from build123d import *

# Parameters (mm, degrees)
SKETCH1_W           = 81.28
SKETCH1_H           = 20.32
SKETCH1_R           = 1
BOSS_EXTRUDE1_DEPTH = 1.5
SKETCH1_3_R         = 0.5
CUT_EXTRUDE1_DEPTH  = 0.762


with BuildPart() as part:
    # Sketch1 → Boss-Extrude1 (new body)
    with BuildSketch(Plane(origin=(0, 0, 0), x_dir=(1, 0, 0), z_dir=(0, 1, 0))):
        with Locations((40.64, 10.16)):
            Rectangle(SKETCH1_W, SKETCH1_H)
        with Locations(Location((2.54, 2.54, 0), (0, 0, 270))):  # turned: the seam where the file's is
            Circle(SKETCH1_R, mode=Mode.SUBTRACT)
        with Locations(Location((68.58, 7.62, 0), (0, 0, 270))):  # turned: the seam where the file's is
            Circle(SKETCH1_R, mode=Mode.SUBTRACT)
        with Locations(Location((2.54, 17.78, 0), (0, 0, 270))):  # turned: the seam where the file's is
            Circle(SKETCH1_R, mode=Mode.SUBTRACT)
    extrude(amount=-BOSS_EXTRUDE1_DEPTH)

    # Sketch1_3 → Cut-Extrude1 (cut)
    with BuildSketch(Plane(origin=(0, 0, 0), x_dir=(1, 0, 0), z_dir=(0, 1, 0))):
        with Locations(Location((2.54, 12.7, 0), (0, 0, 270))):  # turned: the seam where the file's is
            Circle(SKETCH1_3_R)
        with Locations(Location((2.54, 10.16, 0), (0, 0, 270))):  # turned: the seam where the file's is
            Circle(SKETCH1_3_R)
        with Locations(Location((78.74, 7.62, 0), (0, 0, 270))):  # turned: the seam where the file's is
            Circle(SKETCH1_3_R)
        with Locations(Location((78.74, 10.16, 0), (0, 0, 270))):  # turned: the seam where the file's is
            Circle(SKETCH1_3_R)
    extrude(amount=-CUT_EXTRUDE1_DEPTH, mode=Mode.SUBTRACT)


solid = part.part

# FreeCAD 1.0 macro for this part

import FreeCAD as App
import Part
import Sketcher
Q = App.Units.Quantity

doc = App.newDocument("Part")
body = doc.addObject("PartDesign::Body", "Body")

# Sketch on XZ plane
sketch1 = body.newObject("Sketcher::SketchObject", "Sketch")
sketch1.AttachmentSupport = (doc.getObject("XZ_Plane"), [""])
sketch1.MapMode = "FlatFace"
sketch1.addGeometry([
    Part.LineSegment(App.Vector(0, -20.32, 0), App.Vector(0, 0, 0)),  # 0
    Part.LineSegment(App.Vector(0, 0, 0), App.Vector(81.28, 0, 0)),  # 1
    Part.LineSegment(App.Vector(81.28, 0, 0), App.Vector(81.28, -20.32, 0)),  # 2
    Part.LineSegment(App.Vector(81.28, -20.32, 0), App.Vector(0, -20.32, 0)),  # 3
    Part.Circle(App.Vector(2.54, -2.54, 0), App.Vector(0, 0, 1), 1),  # 4
    Part.Circle(App.Vector(68.58, -7.62, 0), App.Vector(0, 0, 1), 1),  # 5
    Part.Circle(App.Vector(2.54, -17.78, 0), App.Vector(0, 0, 1), 1),  # 6
], False)
sketch1.addConstraint([
    Sketcher.Constraint("Coincident", 0, 2, 1, 1),
    Sketcher.Constraint("Coincident", 1, 2, 2, 1),
    Sketcher.Constraint("Coincident", 2, 2, 3, 1),
    Sketcher.Constraint("Coincident", 3, 2, 0, 1),
    Sketcher.Constraint("Vertical", 0),
    Sketcher.Constraint("Horizontal", 1),
    Sketcher.Constraint("Vertical", 2),
    Sketcher.Constraint("Horizontal", 3),
    Sketcher.Constraint("Coincident", 0, 2, -1, 1),
    Sketcher.Constraint("Equal", 4, 5),
    Sketcher.Constraint("Equal", 5, 6),
    Sketcher.Constraint("Vertical", 4, 3, 6, 3),
    Sketcher.Constraint("Diameter", 4, Q("2 mm")),
    Sketcher.Constraint("DistanceX", 1, 1, 1, 2, Q("81.28 mm")),
    Sketcher.Constraint("DistanceY", 0, 1, 0, 2, Q("20.32 mm")),
    Sketcher.Constraint("DistanceX", 5, 3, 1, 2, Q("12.7 mm")),
    Sketcher.Constraint("DistanceY", 2, 2, 5, 3, Q("12.7 mm")),
    Sketcher.Constraint("DistanceX", -1, 1, 4, 3, Q("2.54 mm")),
    Sketcher.Constraint("DistanceY", 4, 3, -1, 1, Q("2.54 mm")),
    Sketcher.Constraint("DistanceY", 6, 3, -1, 1, Q("17.78 mm")),
])
pad1 = body.newObject("PartDesign::Pad", "Pad")
pad1.Profile = sketch1
pad1.Length = 1.5

# Sketch on XZ plane
sketch2 = body.newObject("Sketcher::SketchObject", "Sketch001")
sketch2.AttachmentSupport = (doc.getObject("XZ_Plane"), [""])
sketch2.MapMode = "FlatFace"
sketch2.addGeometry([
    Part.Circle(App.Vector(2.54, -12.7, 0), App.Vector(0, 0, 1), 0.5),
    Part.Circle(App.Vector(2.54, -10.16, 0), App.Vector(0, 0, 1), 0.5),
    Part.Circle(App.Vector(78.74, -7.62, 0), App.Vector(0, 0, 1), 0.5),
    Part.Circle(App.Vector(78.74, -10.16, 0), App.Vector(0, 0, 1), 0.5),
], False)
sketch2.addConstraint([
    Sketcher.Constraint("Equal", 0, 1),
    Sketcher.Constraint("Equal", 1, 2),
    Sketcher.Constraint("Equal", 2, 3),
    Sketcher.Constraint("Horizontal", 1, 3, 3, 3),
    Sketcher.Constraint("Vertical", 0, 3, 1, 3),
    Sketcher.Constraint("Vertical", 2, 3, 3, 3),
    Sketcher.Constraint("Diameter", 0, Q("1 mm")),
    Sketcher.Constraint("DistanceY", 0, 3, -1, 1, Q("12.7 mm")),
    Sketcher.Constraint("DistanceX", 1, 3, 2, 3, Q("76.2 mm")),
    Sketcher.Constraint("DistanceX", -1, 1, 0, 3, Q("2.54 mm")),
    Sketcher.Constraint("DistanceY", 1, 3, -1, 1, Q("10.16 mm")),
    Sketcher.Constraint("DistanceY", 2, 3, -1, 1, Q("7.62 mm")),
])
pocket1 = body.newObject("PartDesign::Pocket", "Pocket")
pocket1.Profile = sketch2
pocket1.Length = 0.762
pocket1.Reversed = True

doc.recompute()
